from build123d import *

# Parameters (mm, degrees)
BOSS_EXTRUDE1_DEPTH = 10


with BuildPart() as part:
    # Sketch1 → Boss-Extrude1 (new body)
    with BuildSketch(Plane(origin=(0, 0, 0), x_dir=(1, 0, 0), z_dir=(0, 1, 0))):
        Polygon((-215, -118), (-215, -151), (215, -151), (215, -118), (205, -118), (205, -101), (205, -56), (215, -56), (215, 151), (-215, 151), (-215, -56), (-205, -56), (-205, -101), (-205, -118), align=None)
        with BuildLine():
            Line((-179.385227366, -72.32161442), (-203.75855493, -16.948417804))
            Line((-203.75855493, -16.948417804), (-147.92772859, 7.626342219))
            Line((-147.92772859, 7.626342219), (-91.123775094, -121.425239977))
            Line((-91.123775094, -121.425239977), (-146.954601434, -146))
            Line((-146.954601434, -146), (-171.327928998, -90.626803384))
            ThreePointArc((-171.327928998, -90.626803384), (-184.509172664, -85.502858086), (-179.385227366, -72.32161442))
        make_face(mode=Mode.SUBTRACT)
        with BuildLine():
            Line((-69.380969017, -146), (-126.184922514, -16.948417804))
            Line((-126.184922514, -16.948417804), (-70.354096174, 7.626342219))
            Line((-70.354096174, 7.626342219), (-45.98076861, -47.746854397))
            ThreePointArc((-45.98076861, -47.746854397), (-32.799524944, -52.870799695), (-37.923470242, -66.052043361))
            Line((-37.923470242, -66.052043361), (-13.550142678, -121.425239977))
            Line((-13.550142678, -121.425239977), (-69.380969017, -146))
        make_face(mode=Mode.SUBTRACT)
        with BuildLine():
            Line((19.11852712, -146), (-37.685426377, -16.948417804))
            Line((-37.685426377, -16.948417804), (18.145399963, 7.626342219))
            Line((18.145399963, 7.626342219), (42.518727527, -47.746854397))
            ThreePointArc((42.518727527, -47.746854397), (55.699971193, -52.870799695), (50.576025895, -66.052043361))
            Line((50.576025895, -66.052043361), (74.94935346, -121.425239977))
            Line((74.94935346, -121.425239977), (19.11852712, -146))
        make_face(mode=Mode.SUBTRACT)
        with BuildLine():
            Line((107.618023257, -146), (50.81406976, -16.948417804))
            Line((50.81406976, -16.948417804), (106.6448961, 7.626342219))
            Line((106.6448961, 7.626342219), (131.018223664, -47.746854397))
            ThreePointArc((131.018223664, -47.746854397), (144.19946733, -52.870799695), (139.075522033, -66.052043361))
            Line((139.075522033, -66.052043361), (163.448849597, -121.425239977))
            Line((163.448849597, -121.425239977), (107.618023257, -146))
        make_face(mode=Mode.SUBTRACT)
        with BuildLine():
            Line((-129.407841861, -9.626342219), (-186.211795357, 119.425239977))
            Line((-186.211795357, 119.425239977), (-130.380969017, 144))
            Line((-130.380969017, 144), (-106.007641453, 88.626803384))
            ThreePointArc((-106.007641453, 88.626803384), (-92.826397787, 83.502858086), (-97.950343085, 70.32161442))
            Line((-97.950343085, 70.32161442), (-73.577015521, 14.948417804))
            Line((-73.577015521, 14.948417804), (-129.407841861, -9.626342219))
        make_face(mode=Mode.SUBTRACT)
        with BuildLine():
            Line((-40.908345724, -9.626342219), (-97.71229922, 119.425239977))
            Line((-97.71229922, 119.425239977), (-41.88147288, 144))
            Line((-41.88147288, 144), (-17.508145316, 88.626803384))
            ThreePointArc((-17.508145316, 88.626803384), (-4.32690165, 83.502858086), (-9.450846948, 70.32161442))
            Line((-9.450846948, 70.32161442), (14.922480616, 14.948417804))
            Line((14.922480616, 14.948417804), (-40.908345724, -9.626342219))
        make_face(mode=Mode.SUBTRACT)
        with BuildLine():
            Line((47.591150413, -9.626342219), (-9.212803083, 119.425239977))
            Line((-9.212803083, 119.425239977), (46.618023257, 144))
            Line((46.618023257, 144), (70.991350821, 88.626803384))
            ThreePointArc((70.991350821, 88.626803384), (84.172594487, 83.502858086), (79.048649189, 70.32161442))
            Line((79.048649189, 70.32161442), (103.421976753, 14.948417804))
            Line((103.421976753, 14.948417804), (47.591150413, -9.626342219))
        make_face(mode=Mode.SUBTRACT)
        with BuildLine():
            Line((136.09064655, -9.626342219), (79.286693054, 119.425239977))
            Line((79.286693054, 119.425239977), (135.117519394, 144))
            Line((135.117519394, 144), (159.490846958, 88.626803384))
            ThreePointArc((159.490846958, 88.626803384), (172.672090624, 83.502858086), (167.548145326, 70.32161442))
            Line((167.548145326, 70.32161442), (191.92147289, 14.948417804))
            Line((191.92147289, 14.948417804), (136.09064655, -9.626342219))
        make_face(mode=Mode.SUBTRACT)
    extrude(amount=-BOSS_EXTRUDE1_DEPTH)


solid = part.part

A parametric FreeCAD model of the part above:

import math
import FreeCAD as App
import Part
import Sketcher
Q = App.Units.Quantity

doc = App.newDocument("Part")
body = doc.addObject("PartDesign::Body", "Body")

sketch1 = doc.addObject("Sketcher::SketchObject", "Sketch")
body.addObject(sketch1)
sketch1.AttachmentSupport = (doc.XZ_Plane, [""])
sketch1.MapMode = "FlatFace"
sketch1.addGeometry([
    Part.LineSegment(App.Vector(-215, 118, 0), App.Vector(-215, 151, 0)),
    Part.LineSegment(App.Vector(-215, 151, 0), App.Vector(215, 151, 0)),
    Part.LineSegment(App.Vector(215, 151, 0), App.Vector(215, 118, 0)),
    Part.LineSegment(App.Vector(215, 118, 0), App.Vector(205, 118, 0)),
    Part.LineSegment(App.Vector(205, 118, 0), App.Vector(205, 56, 0)),
    Part.LineSegment(App.Vector(205, 56, 0), App.Vector(215, 56, 0)),
    Part.LineSegment(App.Vector(215, 56, 0), App.Vector(215, -151, 0)),
    Part.LineSegment(App.Vector(215, -151, 0), App.Vector(-215, -151, 0)),
    Part.LineSegment(App.Vector(-215, -151, 0), App.Vector(-215, 56, 0)),
    Part.LineSegment(App.Vector(-215, 56, 0), App.Vector(-205, 56, 0)),
    Part.LineSegment(App.Vector(-205, 56, 0), App.Vector(-205, 118, 0)),
    Part.LineSegment(App.Vector(-205, 118, 0), App.Vector(-215, 118, 0)),
    Part.ArcOfCircle(Part.Circle(App.Vector(-175.356578, 81.474209, 0), App.Vector(0, 0, 1), 10), math.radians(66.242599), math.radians(246.242599)),
    Part.LineSegment(App.Vector(-179.385227, 72.321614, 0), App.Vector(-203.758555, 16.948418, 0)),
    Part.LineSegment(App.Vector(-203.758555, 16.948418, 0), App.Vector(-147.927729, -7.626342, 0)),
    Part.LineSegment(App.Vector(-147.927729, -7.626342, 0), App.Vector(-91.123775, 121.42524, 0)),
    Part.LineSegment(App.Vector(-91.123775, 121.42524, 0), App.Vector(-146.954601, 146, 0)),
    Part.LineSegment(App.Vector(-146.954601, 146, 0), App.Vector(-171.327929, 90.626803, 0)),
    Part.LineSegment(App.Vector(-13.550143, 121.42524, 0), App.Vector(-69.380969, 146, 0)),
    Part.LineSegment(App.Vector(-69.380969, 146, 0), App.Vector(-126.184923, 16.948418, 0)),
    Part.LineSegment(App.Vector(-126.184923, 16.948418, 0), App.Vector(-70.354096, -7.626342, 0)),
    Part.LineSegment(App.Vector(-70.354096, -7.626342, 0), App.Vector(-45.980769, 47.746854, 0)),
    Part.ArcOfCircle(Part.Circle(App.Vector(-41.952119, 56.899449, 0), App.Vector(0, 0, 1), 10), math.radians(-113.757401), math.radians(66.242599)),
    Part.LineSegment(App.Vector(-37.92347, 66.052043, 0), App.Vector(-13.550143, 121.42524, 0)),
    Part.LineSegment(App.Vector(74.949353, 121.42524, 0), App.Vector(19.118527, 146, 0)),
    Part.LineSegment(App.Vector(19.118527, 146, 0), App.Vector(-37.685426, 16.948418, 0)),
    Part.LineSegment(App.Vector(-37.685426, 16.948418, 0), App.Vector(18.1454, -7.626342, 0)),
    Part.LineSegment(App.Vector(18.1454, -7.626342, 0), App.Vector(42.518728, 47.746854, 0)),
    Part.ArcOfCircle(Part.Circle(App.Vector(46.547377, 56.899449, 0), App.Vector(0, 0, 1), 10), math.radians(-113.757401), math.radians(66.242599)),
    Part.LineSegment(App.Vector(50.576026, 66.052043, 0), App.Vector(74.949353, 121.42524, 0)),
    Part.LineSegment(App.Vector(163.44885, 121.42524, 0), App.Vector(107.618023, 146, 0)),
    Part.LineSegment(App.Vector(107.618023, 146, 0), App.Vector(50.81407, 16.948418, 0)),
    Part.LineSegment(App.Vector(50.81407, 16.948418, 0), App.Vector(106.644896, -7.626342, 0)),
    Part.LineSegment(App.Vector(106.644896, -7.626342, 0), App.Vector(131.018224, 47.746854, 0)),
    Part.ArcOfCircle(Part.Circle(App.Vector(135.046873, 56.899449, 0), App.Vector(0, 0, 1), 10), math.radians(-113.757401), math.radians(66.242599)),
    Part.LineSegment(App.Vector(139.075522, 66.052043, 0), App.Vector(163.44885, 121.42524, 0)),
    Part.LineSegment(App.Vector(-73.577016, -14.948418, 0), App.Vector(-129.407842, 9.626342, 0)),
    Part.LineSegment(App.Vector(-129.407842, 9.626342, 0), App.Vector(-186.211795, -119.42524, 0)),
    Part.LineSegment(App.Vector(-186.211795, -119.42524, 0), App.Vector(-130.380969, -144, 0)),
    Part.LineSegment(App.Vector(-130.380969, -144, 0), App.Vector(-106.007641, -88.626803, 0)),
    Part.ArcOfCircle(Part.Circle(App.Vector(-101.978992, -79.474209, 0), App.Vector(0, 0, 1), 10), math.radians(-113.757401), math.radians(66.242599)),
    Part.LineSegment(App.Vector(-97.950343, -70.321614, 0), App.Vector(-73.577016, -14.948418, 0)),
    Part.LineSegment(App.Vector(14.922481, -14.948418, 0), App.Vector(-40.908346, 9.626342, 0)),
    Part.LineSegment(App.Vector(-40.908346, 9.626342, 0), App.Vector(-97.712299, -119.42524, 0)),
    Part.LineSegment(App.Vector(-97.712299, -119.42524, 0), App.Vector(-41.881473, -144, 0)),
    Part.LineSegment(App.Vector(-41.881473, -144, 0), App.Vector(-17.508145, -88.626803, 0)),
    Part.ArcOfCircle(Part.Circle(App.Vector(-13.479496, -79.474209, 0), App.Vector(0, 0, 1), 10), math.radians(-113.757401), math.radians(66.242599)),
    Part.LineSegment(App.Vector(-9.450847, -70.321614, 0), App.Vector(14.922481, -14.948418, 0)),
    Part.LineSegment(App.Vector(103.421977, -14.948418, 0), App.Vector(47.59115, 9.626342, 0)),
    Part.LineSegment(App.Vector(47.59115, 9.626342, 0), App.Vector(-9.212803, -119.42524, 0)),
    Part.LineSegment(App.Vector(-9.212803, -119.42524, 0), App.Vector(46.618023, -144, 0)),
    Part.LineSegment(App.Vector(46.618023, -144, 0), App.Vector(70.991351, -88.626803, 0)),
    Part.ArcOfCircle(Part.Circle(App.Vector(75.02, -79.474209, 0), App.Vector(0, 0, 1), 10), math.radians(-113.757401), math.radians(66.242599)),
    Part.LineSegment(App.Vector(79.048649, -70.321614, 0), App.Vector(103.421977, -14.948418, 0)),
    Part.LineSegment(App.Vector(191.921473, -14.948418, 0), App.Vector(136.090647, 9.626342, 0)),
    Part.LineSegment(App.Vector(136.090647, 9.626342, 0), App.Vector(79.286693, -119.42524, 0)),
    Part.LineSegment(App.Vector(79.286693, -119.42524, 0), App.Vector(135.117519, -144, 0)),
    Part.LineSegment(App.Vector(135.117519, -144, 0), App.Vector(159.490847, -88.626803, 0)),
    Part.ArcOfCircle(Part.Circle(App.Vector(163.519496, -79.474209, 0), App.Vector(0, 0, 1), 10), math.radians(-113.757401), math.radians(66.242599)),
    Part.LineSegment(App.Vector(167.548145, -70.321614, 0), App.Vector(191.921473, -14.948418, 0)),
], False)
sketch1.addConstraint([
    Sketcher.Constraint("Coincident", 0, 2, 1, 1),
    Sketcher.Constraint("Coincident", 1, 2, 2, 1),
    Sketcher.Constraint("Coincident", 2, 2, 3, 1),
    Sketcher.Constraint("Coincident", 3, 2, 4, 1),
    Sketcher.Constraint("Coincident", 4, 2, 5, 1),
    Sketcher.Constraint("Coincident", 5, 2, 6, 1),
    Sketcher.Constraint("Coincident", 6, 2, 7, 1),
    Sketcher.Constraint("Coincident", 7, 2, 8, 1),
    Sketcher.Constraint("Coincident", 8, 2, 9, 1),
    Sketcher.Constraint("Coincident", 9, 2, 10, 1),
    Sketcher.Constraint("Coincident", 10, 2, 11, 1),
    Sketcher.Constraint("Coincident", 11, 2, 0, 1),
    Sketcher.Constraint("Coincident", 12, 2, 13, 1),
    Sketcher.Constraint("Coincident", 13, 2, 14, 1),
    Sketcher.Constraint("Coincident", 14, 2, 15, 1),
    Sketcher.Constraint("Coincident", 15, 2, 16, 1),
    Sketcher.Constraint("Coincident", 16, 2, 17, 1),
    Sketcher.Constraint("Coincident", 17, 2, 12, 1),
    Sketcher.Constraint("Coincident", 18, 2, 19, 1),
    Sketcher.Constraint("Coincident", 19, 2, 20, 1),
    Sketcher.Constraint("Coincident", 20, 2, 21, 1),
    Sketcher.Constraint("Coincident", 21, 2, 22, 1),
    Sketcher.Constraint("Coincident", 22, 2, 23, 1),
    Sketcher.Constraint("Coincident", 23, 2, 18, 1),
    Sketcher.Constraint("Coincident", 24, 2, 25, 1),
    Sketcher.Constraint("Coincident", 25, 2, 26, 1),
    Sketcher.Constraint("Coincident", 26, 2, 27, 1),
    Sketcher.Constraint("Coincident", 27, 2, 28, 1),
    Sketcher.Constraint("Coincident", 28, 2, 29, 1),
    Sketcher.Constraint("Coincident", 29, 2, 24, 1),
    Sketcher.Constraint("Coincident", 30, 2, 31, 1),
    Sketcher.Constraint("Coincident", 31, 2, 32, 1),
    Sketcher.Constraint("Coincident", 32, 2, 33, 1),
    Sketcher.Constraint("Coincident", 33, 2, 34, 1),
    Sketcher.Constraint("Coincident", 34, 2, 35, 1),
    Sketcher.Constraint("Coincident", 35, 2, 30, 1),
    Sketcher.Constraint("Coincident", 36, 2, 37, 1),
    Sketcher.Constraint("Coincident", 37, 2, 38, 1),
    Sketcher.Constraint("Coincident", 38, 2, 39, 1),
    Sketcher.Constraint("Coincident", 39, 2, 40, 1),
    Sketcher.Constraint("Coincident", 40, 2, 41, 1),
    Sketcher.Constraint("Coincident", 41, 2, 36, 1),
    Sketcher.Constraint("Coincident", 42, 2, 43, 1),
    Sketcher.Constraint("Coincident", 43, 2, 44, 1),
    Sketcher.Constraint("Coincident", 44, 2, 45, 1),
    Sketcher.Constraint("Coincident", 45, 2, 46, 1),
    Sketcher.Constraint("Coincident", 46, 2, 47, 1),
    Sketcher.Constraint("Coincident", 47, 2, 42, 1),
    Sketcher.Constraint("Coincident", 48, 2, 49, 1),
    Sketcher.Constraint("Coincident", 49, 2, 50, 1),
    Sketcher.Constraint("Coincident", 50, 2, 51, 1),
    Sketcher.Constraint("Coincident", 51, 2, 52, 1),
    Sketcher.Constraint("Coincident", 52, 2, 53, 1),
    Sketcher.Constraint("Coincident", 53, 2, 48, 1),
    Sketcher.Constraint("Coincident", 54, 2, 55, 1),
    Sketcher.Constraint("Coincident", 55, 2, 56, 1),
    Sketcher.Constraint("Coincident", 56, 2, 57, 1),
    Sketcher.Constraint("Coincident", 57, 2, 58, 1),
    Sketcher.Constraint("Coincident", 58, 2, 59, 1),
    Sketcher.Constraint("Coincident", 59, 2, 54, 1),
    Sketcher.Constraint("Vertical", 0),
    Sketcher.Constraint("Horizontal", 1),
    Sketcher.Constraint("Vertical", 2),
    Sketcher.Constraint("Horizontal", 3),
    Sketcher.Constraint("Vertical", 4),
    Sketcher.Constraint("Horizontal", 5),
    Sketcher.Constraint("Vertical", 6),
    Sketcher.Constraint("Horizontal", 7),
    Sketcher.Constraint("Vertical", 8),
    Sketcher.Constraint("Horizontal", 9),
    Sketcher.Constraint("Vertical", 10),
    Sketcher.Constraint("Horizontal", 11),
    Sketcher.Constraint("Equal", 12, 22),
    Sketcher.Constraint("Equal", 22, 28),
    Sketcher.Constraint("Equal", 28, 34),
    Sketcher.Constraint("Equal", 34, 40),
    Sketcher.Constraint("Equal", 40, 46),
    Sketcher.Constraint("Equal", 46, 52),
    Sketcher.Constraint("Equal", 52, 58),
    Sketcher.Constraint("Symmetric", 0, 2, 6, 2, -1, 1),
    Sketcher.Constraint("Symmetric", 5, 2, 8, 2, -2),
    Sketcher.Constraint("Symmetric", 3, 2, 10, 2, -2),
    Sketcher.Constraint("Perpendicular", 13, 14),
    Sketcher.Constraint("Perpendicular", 14, 15),
    Sketcher.Constraint("Perpendicular", 15, 16),
    Sketcher.Constraint("Perpendicular", 16, 17),
    Sketcher.Constraint("Perpendicular", 17, 18),
    Sketcher.Constraint("Perpendicular", 18, 19),
    Sketcher.Constraint("Perpendicular", 19, 20),
    Sketcher.Constraint("Perpendicular", 20, 21),
    Sketcher.Constraint("Parallel", 21, 23),
    Sketcher.Constraint("Perpendicular", 23, 24),
    Sketcher.Constraint("Perpendicular", 24, 25),
    Sketcher.Constraint("Perpendicular", 25, 26),
    Sketcher.Constraint("Perpendicular", 26, 27),
    Sketcher.Constraint("Parallel", 27, 29),
    Sketcher.Constraint("Perpendicular", 29, 30),
    Sketcher.Constraint("Perpendicular", 30, 31),
    Sketcher.Constraint("Perpendicular", 31, 32),
    Sketcher.Constraint("Perpendicular", 32, 33),
    Sketcher.Constraint("Parallel", 33, 35),
    Sketcher.Constraint("Perpendicular", 35, 36),
    Sketcher.Constraint("Perpendicular", 36, 37),
    Sketcher.Constraint("Perpendicular", 37, 38),
    Sketcher.Constraint("Perpendicular", 38, 39),
    Sketcher.Constraint("Parallel", 39, 41),
    Sketcher.Constraint("Perpendicular", 41, 42),
    Sketcher.Constraint("Perpendicular", 42, 43),
    Sketcher.Constraint("Perpendicular", 43, 44),
    Sketcher.Constraint("Perpendicular", 44, 45),
    Sketcher.Constraint("Parallel", 45, 47),
    Sketcher.Constraint("Perpendicular", 47, 48),
    Sketcher.Constraint("Perpendicular", 48, 49),
    Sketcher.Constraint("Perpendicular", 49, 50),
    Sketcher.Constraint("Perpendicular", 50, 51),
    Sketcher.Constraint("Parallel", 51, 53),
    Sketcher.Constraint("Perpendicular", 53, 54),
    Sketcher.Constraint("Perpendicular", 54, 55),
    Sketcher.Constraint("Perpendicular", 55, 56),
    Sketcher.Constraint("Perpendicular", 56, 57),
    Sketcher.Constraint("Parallel", 57, 59),
    Sketcher.Constraint("Horizontal", 22, 3, 28, 3),
    Sketcher.Constraint("Horizontal", 28, 3, 34, 3),
    Sketcher.Constraint("Horizontal", 40, 3, 46, 3),
    Sketcher.Constraint("Horizontal", 46, 3, 52, 3),
    Sketcher.Constraint("Horizontal", 52, 3, 58, 3),
    Sketcher.Constraint("Horizontal", 16, 2, 18, 2),
    Sketcher.Constraint("Horizontal", 13, 2, 19, 2),
    Sketcher.Constraint("Horizontal", 14, 2, 20, 2),
    Sketcher.Constraint("Horizontal", 15, 2, 23, 2),
    Sketcher.Constraint("Horizontal", 18, 2, 24, 2),
    Sketcher.Constraint("Horizontal", 19, 2, 25, 2),
    Sketcher.Constraint("Horizontal", 20, 2, 26, 2),
    Sketcher.Constraint("Horizontal", 21, 2, 27, 2),
    Sketcher.Constraint("Horizontal", 22, 2, 28, 2),
    Sketcher.Constraint("Horizontal", 24, 2, 30, 2),
    Sketcher.Constraint("Horizontal", 25, 2, 31, 2),
    Sketcher.Constraint("Horizontal", 26, 2, 32, 2),
    Sketcher.Constraint("Horizontal", 27, 2, 33, 2),
    Sketcher.Constraint("Horizontal", 28, 2, 34, 2),
    Sketcher.Constraint("Horizontal", 36, 2, 42, 2),
    Sketcher.Constraint("Horizontal", 37, 2, 43, 2),
    Sketcher.Constraint("Horizontal", 38, 2, 44, 2),
    Sketcher.Constraint("Horizontal", 39, 2, 45, 2),
    Sketcher.Constraint("Horizontal", 40, 2, 46, 2),
    Sketcher.Constraint("Horizontal", 42, 2, 48, 2),
    Sketcher.Constraint("Horizontal", 43, 2, 49, 2),
    Sketcher.Constraint("Horizontal", 44, 2, 50, 2),
    Sketcher.Constraint("Horizontal", 45, 2, 51, 2),
    Sketcher.Constraint("Horizontal", 46, 2, 52, 2),
    Sketcher.Constraint("Horizontal", 48, 2, 54, 2),
    Sketcher.Constraint("Horizontal", 49, 2, 55, 2),
    Sketcher.Constraint("Horizontal", 50, 2, 56, 2),
    Sketcher.Constraint("Horizontal", 51, 2, 57, 2),
    Sketcher.Constraint("Horizontal", 52, 2, 58, 2),
    Sketcher.Constraint("Vertical", 2, 2, 5, 2),
    Sketcher.Constraint("Equal", 14, 16),
    Sketcher.Constraint("Equal", 13, 17),
    Sketcher.Constraint("Equal", 17, 21),
    Sketcher.Constraint("Equal", 32, 36),
    Sketcher.Constraint("Equal", 31, 37),
    Sketcher.Constraint("Equal", 36, 38),
    Sketcher.Constraint("Equal", 35, 39),
    Sketcher.Constraint("Radius", 12, Q("10 mm")),
    Sketcher.Constraint("DistanceX", 1, 1, 1, 2, Q("430 mm")),
    Sketcher.Constraint("DistanceX", 3, 2, 3, 1, Q("10 mm")),
    Sketcher.Constraint("DistanceY", 0, 1, 0, 2, Q("33 mm")),
    Sketcher.Constraint("DistanceY", 4, 2, 4, 1, Q("62 mm")),
    Sketcher.Constraint("DistanceY", 6, 2, 6, 1, Q("207 mm")),
    Sketcher.Constraint("Distance", 14, Q("61 mm")),
    Sketcher.Constraint("Distance", 15, Q("141 mm")),
    Sketcher.Constraint("DistanceY", -1, 1, 16, 2, Q("146 mm")),
    Sketcher.Constraint("DistanceY", 38, 2, -1, 1, Q("144 mm")),
    Sketcher.Constraint("DistanceX", -1, 1, 52, 3, Q("75.02 mm")),
    Sketcher.Constraint("DistanceX", 16, 2, -1, 1, Q("146.954601 mm")),
    Sketcher.Constraint("DistanceX", -1, 1, 26, 2, Q("18.1454 mm")),
    Sketcher.Constraint("DistanceX", 43, 2, -1, 1, Q("97.712299 mm")),
    Sketcher.Constraint("DistanceX", 12, 3, -1, 1, Q("175.356578 mm")),
    Sketcher.Constraint("DistanceX", 22, 3, -1, 1, Q("41.952119 mm")),
    Sketcher.Constraint("DistanceY", -1, 1, 22, 3, Q("56.899449 mm")),
    Sketcher.Constraint("DistanceY", 40, 3, -1, 1, Q("79.474209 mm")),
    Sketcher.Constraint("DistanceX", 14, 2, -1, 1, Q("147.927729 mm")),
    Sketcher.Constraint("DistanceX", -1, 1, 31, 2, Q("50.81407 mm")),
    Sketcher.Constraint("DistanceX", 36, 2, -1, 1, Q("129.407842 mm")),
    Sketcher.Constraint("DistanceX", -1, 1, 56, 2, Q("135.117519 mm")),
])
pad1 = doc.addObject("PartDesign::Pad", "Pad")
body.addObject(pad1)
pad1.Profile = sketch1
pad1.Length = 10

doc.recompute()
